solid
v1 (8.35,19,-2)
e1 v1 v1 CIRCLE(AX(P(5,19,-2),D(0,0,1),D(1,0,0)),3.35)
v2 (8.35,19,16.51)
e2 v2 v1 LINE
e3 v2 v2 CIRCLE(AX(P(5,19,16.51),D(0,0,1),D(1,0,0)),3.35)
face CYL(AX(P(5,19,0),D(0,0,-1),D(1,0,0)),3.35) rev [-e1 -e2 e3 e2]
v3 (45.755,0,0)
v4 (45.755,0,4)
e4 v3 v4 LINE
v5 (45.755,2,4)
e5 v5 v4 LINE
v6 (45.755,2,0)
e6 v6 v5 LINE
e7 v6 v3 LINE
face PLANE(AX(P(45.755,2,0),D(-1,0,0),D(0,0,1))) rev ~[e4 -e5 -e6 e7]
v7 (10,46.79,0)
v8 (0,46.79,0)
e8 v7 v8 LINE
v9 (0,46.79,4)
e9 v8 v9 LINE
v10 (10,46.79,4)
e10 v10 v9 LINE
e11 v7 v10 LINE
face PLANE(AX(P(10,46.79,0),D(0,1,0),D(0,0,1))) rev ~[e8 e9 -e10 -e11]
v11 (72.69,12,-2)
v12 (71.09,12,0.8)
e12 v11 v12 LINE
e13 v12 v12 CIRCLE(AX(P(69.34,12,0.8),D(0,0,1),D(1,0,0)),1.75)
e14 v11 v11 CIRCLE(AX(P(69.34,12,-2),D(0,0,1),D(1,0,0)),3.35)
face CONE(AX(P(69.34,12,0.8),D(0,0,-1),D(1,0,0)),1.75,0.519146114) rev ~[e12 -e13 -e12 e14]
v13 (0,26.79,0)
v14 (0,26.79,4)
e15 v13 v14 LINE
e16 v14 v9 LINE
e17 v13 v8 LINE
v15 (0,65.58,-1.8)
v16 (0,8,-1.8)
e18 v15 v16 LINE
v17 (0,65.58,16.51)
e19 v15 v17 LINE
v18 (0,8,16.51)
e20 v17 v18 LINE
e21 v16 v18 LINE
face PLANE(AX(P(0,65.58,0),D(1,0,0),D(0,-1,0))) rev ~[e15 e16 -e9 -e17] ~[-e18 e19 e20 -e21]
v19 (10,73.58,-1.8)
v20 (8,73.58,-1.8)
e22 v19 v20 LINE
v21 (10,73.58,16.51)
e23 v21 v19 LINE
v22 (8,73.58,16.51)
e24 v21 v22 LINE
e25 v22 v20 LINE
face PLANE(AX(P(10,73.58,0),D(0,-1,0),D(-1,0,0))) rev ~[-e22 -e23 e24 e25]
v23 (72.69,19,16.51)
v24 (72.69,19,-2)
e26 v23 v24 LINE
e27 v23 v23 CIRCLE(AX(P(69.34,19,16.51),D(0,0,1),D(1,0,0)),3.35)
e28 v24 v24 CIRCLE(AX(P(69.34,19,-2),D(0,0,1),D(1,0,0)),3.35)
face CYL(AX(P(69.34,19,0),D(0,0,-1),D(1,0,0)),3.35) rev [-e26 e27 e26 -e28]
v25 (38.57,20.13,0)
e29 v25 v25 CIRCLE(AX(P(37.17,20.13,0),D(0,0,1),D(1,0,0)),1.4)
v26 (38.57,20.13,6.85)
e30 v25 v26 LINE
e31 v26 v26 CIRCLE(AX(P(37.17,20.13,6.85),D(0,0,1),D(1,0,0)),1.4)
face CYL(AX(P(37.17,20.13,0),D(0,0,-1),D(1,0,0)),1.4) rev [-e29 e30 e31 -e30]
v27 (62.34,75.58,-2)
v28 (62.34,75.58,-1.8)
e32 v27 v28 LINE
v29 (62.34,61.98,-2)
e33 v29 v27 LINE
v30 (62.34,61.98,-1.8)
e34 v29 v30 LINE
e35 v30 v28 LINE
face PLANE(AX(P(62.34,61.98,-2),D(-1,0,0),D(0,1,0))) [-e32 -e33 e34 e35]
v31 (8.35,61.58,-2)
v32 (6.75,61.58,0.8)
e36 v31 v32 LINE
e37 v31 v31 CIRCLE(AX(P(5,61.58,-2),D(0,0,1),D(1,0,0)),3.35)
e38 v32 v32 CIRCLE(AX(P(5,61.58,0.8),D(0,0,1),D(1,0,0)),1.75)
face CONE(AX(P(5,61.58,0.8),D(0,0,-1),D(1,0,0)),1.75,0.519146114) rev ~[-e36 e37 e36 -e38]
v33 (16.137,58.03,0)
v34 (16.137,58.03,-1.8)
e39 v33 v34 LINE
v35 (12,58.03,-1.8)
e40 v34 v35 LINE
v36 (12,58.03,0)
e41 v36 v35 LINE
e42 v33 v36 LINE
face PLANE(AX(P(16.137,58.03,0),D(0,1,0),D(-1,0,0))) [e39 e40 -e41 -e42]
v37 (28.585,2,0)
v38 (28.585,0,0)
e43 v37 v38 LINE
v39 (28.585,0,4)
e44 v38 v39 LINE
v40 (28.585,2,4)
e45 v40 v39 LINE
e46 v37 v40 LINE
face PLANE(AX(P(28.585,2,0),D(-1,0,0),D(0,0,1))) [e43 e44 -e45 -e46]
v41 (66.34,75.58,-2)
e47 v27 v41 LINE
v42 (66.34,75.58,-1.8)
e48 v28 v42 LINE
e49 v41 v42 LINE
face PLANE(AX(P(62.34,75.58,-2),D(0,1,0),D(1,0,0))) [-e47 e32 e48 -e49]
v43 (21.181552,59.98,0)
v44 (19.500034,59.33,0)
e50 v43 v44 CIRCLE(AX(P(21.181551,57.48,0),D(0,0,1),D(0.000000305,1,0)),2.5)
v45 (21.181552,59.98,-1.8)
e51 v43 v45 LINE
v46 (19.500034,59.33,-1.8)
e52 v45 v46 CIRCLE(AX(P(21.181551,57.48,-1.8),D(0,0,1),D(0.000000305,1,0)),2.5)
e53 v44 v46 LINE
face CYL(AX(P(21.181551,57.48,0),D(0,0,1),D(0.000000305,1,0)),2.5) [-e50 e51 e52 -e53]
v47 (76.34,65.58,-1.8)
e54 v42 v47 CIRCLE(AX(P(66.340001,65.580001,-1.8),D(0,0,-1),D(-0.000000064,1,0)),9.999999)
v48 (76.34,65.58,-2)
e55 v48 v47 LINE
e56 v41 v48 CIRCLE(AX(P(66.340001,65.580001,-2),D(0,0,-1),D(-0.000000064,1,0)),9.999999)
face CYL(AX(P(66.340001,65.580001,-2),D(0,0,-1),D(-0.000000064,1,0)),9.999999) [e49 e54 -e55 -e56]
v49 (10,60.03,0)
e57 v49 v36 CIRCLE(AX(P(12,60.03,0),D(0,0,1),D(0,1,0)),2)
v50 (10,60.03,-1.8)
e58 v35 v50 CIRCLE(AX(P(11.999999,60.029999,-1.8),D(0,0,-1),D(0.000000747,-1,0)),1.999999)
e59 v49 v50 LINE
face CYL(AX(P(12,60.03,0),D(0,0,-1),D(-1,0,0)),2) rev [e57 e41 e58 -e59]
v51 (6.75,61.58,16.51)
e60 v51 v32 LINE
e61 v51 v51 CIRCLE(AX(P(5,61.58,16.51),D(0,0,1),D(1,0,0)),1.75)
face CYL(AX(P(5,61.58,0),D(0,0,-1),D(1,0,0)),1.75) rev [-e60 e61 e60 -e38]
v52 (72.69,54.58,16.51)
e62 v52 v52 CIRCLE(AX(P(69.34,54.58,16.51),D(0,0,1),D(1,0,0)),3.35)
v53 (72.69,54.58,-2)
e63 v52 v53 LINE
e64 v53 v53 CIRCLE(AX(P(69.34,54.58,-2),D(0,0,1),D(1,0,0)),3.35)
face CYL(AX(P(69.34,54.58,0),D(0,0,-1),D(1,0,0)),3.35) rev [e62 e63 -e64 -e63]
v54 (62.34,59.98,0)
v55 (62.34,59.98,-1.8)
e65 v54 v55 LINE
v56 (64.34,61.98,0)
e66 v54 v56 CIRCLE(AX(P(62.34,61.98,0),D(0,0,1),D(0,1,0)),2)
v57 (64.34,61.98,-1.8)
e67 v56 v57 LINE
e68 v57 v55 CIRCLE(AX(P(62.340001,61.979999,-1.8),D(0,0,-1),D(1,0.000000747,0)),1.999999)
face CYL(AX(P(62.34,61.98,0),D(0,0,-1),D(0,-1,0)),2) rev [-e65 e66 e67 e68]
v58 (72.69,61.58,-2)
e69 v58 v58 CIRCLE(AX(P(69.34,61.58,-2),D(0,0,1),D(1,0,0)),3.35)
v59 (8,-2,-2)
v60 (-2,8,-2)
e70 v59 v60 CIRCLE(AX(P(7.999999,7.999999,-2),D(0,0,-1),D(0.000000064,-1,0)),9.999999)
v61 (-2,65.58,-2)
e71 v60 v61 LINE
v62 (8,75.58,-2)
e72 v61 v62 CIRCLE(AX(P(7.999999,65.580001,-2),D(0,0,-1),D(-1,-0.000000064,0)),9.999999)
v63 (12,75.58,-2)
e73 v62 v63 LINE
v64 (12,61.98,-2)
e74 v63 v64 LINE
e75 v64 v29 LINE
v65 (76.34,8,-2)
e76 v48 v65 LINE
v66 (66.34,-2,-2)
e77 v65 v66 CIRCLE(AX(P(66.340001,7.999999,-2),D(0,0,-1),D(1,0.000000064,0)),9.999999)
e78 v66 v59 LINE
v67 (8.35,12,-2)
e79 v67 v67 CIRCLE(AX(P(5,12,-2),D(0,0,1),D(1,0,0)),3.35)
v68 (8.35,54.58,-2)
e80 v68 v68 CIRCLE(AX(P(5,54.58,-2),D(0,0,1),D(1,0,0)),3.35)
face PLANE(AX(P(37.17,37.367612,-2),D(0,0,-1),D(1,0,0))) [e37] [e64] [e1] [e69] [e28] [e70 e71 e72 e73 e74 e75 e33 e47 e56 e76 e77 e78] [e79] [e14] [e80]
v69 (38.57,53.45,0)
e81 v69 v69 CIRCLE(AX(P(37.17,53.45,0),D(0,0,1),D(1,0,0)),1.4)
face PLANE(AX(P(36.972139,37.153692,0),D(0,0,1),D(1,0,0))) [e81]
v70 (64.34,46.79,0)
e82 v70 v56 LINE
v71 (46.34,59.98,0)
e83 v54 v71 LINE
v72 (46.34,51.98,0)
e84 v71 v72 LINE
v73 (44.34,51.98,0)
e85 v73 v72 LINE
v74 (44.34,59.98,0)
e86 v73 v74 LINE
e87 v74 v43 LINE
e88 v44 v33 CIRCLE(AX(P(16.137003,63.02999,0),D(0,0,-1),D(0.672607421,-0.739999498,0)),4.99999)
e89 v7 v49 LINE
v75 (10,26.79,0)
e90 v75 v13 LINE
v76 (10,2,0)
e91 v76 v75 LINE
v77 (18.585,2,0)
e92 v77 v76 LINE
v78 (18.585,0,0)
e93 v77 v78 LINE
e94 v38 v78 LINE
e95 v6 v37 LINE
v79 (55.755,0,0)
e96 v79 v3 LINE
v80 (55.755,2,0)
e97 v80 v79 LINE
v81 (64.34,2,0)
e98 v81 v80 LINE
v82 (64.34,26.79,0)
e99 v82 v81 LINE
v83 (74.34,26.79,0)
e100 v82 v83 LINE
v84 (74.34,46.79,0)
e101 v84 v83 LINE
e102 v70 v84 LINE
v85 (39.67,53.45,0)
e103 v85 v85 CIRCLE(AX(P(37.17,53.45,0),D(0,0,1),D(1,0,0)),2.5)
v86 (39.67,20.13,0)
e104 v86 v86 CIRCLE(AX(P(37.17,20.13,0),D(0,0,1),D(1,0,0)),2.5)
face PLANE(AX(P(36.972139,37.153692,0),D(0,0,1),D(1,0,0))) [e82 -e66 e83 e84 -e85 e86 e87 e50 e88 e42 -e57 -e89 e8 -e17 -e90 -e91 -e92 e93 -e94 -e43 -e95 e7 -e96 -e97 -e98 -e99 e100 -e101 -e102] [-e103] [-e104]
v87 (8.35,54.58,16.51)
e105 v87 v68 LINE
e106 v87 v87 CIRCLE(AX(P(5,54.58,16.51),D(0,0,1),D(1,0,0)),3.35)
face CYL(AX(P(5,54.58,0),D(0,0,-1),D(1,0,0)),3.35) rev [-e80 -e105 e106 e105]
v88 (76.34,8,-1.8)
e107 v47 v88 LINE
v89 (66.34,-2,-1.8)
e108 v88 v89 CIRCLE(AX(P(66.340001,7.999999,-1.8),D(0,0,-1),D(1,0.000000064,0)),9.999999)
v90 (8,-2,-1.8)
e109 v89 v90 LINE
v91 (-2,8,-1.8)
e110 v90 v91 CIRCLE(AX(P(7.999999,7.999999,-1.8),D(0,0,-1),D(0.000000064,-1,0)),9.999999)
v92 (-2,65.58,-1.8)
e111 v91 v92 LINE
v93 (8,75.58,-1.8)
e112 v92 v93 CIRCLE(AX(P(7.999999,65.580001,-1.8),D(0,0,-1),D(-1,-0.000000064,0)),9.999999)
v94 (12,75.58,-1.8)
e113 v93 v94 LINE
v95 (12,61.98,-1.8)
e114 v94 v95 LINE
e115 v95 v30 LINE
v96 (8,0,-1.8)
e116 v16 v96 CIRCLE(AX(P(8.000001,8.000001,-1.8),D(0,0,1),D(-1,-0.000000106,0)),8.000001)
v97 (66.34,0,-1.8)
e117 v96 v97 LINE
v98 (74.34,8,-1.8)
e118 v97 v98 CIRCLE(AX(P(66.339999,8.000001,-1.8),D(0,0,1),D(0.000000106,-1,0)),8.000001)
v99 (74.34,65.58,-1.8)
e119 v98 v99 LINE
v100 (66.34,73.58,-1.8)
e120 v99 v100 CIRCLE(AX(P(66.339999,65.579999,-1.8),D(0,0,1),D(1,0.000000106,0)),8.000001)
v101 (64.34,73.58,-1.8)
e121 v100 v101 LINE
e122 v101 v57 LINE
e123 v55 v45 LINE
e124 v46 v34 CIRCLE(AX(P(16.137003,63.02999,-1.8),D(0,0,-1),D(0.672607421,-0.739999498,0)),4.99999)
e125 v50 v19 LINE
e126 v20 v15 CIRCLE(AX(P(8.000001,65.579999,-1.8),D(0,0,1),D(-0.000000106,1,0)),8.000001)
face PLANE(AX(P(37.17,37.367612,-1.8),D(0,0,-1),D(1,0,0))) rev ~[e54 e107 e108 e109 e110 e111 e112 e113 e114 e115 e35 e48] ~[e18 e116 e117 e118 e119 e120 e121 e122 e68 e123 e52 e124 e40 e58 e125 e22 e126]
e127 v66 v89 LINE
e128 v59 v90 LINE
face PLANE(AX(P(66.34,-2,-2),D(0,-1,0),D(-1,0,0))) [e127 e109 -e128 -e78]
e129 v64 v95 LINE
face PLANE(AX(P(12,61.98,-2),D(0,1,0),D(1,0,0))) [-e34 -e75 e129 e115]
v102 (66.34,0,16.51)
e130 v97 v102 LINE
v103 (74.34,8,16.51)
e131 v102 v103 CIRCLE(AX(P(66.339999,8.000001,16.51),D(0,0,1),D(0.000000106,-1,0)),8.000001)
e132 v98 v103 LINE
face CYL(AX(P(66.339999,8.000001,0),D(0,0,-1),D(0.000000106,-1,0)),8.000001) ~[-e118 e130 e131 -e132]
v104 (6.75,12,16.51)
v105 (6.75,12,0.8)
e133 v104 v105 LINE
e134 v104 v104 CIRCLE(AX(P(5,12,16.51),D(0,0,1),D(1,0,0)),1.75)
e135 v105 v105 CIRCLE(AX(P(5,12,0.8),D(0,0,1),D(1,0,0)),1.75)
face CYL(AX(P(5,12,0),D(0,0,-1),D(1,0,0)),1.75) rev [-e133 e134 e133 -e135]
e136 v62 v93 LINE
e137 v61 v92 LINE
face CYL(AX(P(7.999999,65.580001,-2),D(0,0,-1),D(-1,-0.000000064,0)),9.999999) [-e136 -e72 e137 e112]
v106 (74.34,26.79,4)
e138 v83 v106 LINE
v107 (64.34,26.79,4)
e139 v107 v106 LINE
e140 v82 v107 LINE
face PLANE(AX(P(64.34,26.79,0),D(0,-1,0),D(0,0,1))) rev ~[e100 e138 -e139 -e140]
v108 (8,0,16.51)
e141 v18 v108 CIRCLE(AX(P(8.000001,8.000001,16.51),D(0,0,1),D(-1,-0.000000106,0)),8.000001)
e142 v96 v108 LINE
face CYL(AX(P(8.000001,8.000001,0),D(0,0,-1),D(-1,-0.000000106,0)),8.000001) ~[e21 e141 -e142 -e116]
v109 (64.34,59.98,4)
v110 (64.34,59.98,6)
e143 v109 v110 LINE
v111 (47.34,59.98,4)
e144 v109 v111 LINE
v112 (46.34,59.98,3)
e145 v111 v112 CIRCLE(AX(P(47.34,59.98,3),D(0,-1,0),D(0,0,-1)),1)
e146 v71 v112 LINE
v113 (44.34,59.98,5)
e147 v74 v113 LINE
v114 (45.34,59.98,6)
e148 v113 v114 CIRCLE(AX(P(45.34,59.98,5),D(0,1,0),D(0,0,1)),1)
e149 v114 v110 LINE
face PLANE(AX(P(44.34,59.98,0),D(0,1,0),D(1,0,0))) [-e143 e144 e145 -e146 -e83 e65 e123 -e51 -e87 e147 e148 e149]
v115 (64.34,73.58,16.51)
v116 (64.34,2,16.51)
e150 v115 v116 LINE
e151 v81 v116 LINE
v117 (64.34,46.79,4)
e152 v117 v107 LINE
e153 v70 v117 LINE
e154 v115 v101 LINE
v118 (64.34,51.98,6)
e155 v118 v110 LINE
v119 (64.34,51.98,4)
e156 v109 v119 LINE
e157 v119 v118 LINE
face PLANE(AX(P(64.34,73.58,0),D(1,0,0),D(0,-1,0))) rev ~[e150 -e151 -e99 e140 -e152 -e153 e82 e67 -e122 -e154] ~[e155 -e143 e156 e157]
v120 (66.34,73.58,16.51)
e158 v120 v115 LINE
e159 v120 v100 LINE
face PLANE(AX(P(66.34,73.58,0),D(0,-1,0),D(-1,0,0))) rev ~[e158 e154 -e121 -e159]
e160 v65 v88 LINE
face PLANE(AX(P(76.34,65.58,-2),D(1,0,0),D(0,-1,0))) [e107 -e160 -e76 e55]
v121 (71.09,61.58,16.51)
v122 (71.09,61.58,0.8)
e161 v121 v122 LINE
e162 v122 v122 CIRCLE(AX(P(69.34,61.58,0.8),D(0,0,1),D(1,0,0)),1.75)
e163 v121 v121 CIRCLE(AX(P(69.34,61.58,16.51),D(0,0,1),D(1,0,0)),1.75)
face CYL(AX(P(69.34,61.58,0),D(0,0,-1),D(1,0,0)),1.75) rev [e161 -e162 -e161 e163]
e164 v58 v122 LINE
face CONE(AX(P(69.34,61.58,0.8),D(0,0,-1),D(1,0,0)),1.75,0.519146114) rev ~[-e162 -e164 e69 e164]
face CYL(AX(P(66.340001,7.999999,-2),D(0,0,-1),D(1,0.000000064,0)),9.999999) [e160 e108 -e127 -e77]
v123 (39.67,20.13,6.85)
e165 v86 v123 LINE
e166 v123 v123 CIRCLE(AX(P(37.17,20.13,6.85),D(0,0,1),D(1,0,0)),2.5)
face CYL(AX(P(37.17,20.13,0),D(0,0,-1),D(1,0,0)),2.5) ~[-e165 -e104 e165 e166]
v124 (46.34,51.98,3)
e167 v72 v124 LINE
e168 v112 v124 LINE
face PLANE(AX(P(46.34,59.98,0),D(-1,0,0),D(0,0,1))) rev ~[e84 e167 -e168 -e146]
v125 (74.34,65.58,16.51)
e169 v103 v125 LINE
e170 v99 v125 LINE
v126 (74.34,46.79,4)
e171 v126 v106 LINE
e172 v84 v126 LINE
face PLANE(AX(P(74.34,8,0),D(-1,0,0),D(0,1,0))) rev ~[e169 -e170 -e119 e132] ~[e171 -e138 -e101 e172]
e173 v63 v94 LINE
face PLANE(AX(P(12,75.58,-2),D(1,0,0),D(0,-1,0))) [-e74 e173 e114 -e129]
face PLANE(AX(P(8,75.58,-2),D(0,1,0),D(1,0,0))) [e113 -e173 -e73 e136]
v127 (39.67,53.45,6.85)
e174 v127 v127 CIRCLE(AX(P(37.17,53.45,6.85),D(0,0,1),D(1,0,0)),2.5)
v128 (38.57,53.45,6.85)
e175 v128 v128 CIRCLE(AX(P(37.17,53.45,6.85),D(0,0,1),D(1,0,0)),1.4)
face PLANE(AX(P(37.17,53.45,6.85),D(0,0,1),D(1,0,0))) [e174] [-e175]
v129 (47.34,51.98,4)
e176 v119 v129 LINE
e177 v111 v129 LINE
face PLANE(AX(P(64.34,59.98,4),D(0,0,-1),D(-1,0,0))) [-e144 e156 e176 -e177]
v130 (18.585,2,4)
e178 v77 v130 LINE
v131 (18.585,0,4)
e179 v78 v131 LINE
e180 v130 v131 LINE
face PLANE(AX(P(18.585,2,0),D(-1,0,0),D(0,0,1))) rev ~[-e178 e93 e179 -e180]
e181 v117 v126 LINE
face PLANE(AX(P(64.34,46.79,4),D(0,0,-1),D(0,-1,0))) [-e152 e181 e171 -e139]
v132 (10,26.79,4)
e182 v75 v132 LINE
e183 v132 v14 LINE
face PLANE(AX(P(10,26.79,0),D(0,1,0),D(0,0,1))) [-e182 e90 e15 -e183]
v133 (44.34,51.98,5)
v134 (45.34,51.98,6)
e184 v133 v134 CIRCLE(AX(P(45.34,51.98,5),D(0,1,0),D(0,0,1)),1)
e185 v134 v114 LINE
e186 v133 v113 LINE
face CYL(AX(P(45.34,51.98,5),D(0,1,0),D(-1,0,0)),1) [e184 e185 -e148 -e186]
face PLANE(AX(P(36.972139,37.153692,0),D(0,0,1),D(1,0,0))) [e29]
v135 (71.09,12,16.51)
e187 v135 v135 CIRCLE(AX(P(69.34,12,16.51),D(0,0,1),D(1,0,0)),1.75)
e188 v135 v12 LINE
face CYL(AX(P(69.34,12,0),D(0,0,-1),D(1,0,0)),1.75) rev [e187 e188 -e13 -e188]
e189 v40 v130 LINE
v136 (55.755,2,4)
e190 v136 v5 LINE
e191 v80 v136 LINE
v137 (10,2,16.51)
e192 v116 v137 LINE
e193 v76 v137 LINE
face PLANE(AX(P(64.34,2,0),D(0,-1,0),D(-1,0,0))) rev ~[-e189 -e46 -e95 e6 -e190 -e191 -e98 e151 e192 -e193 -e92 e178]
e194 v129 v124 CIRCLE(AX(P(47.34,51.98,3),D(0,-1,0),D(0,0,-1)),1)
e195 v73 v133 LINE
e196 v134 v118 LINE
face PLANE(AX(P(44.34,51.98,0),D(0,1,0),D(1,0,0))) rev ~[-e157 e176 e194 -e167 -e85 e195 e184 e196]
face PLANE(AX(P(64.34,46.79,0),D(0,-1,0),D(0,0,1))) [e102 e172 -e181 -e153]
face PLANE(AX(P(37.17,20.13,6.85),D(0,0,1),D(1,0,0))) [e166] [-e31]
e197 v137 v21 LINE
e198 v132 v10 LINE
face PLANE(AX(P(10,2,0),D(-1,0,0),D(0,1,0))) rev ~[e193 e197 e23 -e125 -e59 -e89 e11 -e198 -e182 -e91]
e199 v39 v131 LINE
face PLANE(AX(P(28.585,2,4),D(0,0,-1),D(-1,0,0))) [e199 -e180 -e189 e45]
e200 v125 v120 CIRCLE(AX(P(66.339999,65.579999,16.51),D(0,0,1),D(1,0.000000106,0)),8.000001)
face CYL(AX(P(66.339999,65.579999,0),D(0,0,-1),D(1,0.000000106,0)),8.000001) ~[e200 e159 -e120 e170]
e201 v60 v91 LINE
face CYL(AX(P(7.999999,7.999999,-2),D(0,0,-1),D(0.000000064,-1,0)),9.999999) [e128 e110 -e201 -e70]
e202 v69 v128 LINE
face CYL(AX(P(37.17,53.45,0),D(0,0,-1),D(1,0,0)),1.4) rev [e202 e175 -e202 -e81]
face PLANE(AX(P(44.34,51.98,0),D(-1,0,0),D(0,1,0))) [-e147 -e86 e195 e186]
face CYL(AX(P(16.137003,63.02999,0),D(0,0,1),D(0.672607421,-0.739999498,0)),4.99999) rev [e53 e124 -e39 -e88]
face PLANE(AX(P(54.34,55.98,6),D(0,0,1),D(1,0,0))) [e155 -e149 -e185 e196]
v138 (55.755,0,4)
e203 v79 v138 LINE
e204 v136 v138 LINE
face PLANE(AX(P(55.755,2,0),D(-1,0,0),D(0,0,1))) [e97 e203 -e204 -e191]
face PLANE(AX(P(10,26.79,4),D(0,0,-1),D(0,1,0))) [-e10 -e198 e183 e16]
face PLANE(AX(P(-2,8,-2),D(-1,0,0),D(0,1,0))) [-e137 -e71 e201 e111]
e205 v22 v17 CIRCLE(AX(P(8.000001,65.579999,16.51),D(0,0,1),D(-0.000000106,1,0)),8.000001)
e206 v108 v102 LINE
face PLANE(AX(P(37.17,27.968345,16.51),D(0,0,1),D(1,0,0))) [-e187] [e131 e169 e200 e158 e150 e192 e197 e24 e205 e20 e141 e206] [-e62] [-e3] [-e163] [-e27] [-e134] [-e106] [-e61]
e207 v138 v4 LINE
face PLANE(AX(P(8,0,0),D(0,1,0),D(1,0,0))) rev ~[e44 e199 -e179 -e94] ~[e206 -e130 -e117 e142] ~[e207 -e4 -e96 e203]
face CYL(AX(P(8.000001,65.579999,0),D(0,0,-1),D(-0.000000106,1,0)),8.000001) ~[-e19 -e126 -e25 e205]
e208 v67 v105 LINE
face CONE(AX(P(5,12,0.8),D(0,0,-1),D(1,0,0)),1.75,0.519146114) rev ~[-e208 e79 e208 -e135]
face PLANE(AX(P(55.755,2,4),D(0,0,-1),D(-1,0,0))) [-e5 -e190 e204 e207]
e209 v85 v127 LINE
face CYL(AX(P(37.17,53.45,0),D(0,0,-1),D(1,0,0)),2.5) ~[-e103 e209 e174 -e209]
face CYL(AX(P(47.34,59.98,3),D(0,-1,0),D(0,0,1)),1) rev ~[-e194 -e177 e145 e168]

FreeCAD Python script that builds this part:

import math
import FreeCAD as App
import Part
import Sketcher

V = App.Vector


def edges_at(feature, points):
    """Names of the edges that pass closest to the given points."""
    edges = feature.Shape.Edges
    near = lambda p: min(range(len(edges)), key=lambda i: edges[i].distToShape(Part.Vertex(*p))[0])
    return sorted({f"Edge{near(p) + 1}" for p in points})

doc = App.newDocument("Part")
body = doc.addObject("PartDesign::Body", "Body")

sketch1 = body.newObject("Sketcher::SketchObject", "Sketch")
sketch1.AttachmentSupport = (doc.getObject("XY_Plane"), [""])
sketch1.MapMode = "FlatFace"
sketch1.addGeometry([
    Part.ArcOfCircle(Part.Circle(V(8, 65.6, 0), V(0, 0, 1), 8), math.radians(90), math.radians(180)),
    Part.LineSegment(V(0, 65.6, 0), V(0, 8, 0)),
    Part.ArcOfCircle(Part.Circle(V(8, 8, 0), V(0, 0, 1), 8), math.radians(-180), math.radians(-90)),
    Part.LineSegment(V(8, 0, 0), V(66.3, 0, 0)),
    Part.ArcOfCircle(Part.Circle(V(66.3, 8, 0), V(0, 0, 1), 8), math.radians(-90), math.radians(0)),
    Part.LineSegment(V(74.3, 8, 0), V(74.3, 65.6, 0)),
    Part.ArcOfCircle(Part.Circle(V(66.3, 65.6, 0), V(0, 0, 1), 8), math.radians(0), math.radians(90)),
    Part.LineSegment(V(66.3, 73.6, 0), V(64.3, 73.6, 0)),
    Part.LineSegment(V(64.3, 73.6, 0), V(64.3, 60, 0)),
    Part.LineSegment(V(64.3, 60, 0), V(21.2, 60, 0)),
    Part.ArcOfCircle(Part.Circle(V(21.2, 57.5, 0), V(0, 0, 1), 2.5), math.radians(90), math.radians(132)),
    Part.ArcOfCircle(Part.Circle(V(16.1, 63, 0), V(0, 0, 1), 5), math.radians(-90), math.radians(-48)),
    Part.LineSegment(V(16.1, 58, 0), V(10, 58, 0)),
    Part.LineSegment(V(10, 58, 0), V(10, 73.6, 0)),
    Part.LineSegment(V(10, 73.6, 0), V(8, 73.6, 0)),
    Part.Circle(V(5, 12, 0), V(0, 0, 1), 1.8),
    Part.Circle(V(5, 19, 0), V(0, 0, 1), 3.4),
    Part.Circle(V(69.3, 12, 0), V(0, 0, 1), 1.8),
    Part.Circle(V(69.3, 19, 0), V(0, 0, 1), 3.4),
    Part.Circle(V(5, 54.6, 0), V(0, 0, 1), 3.4),
    Part.Circle(V(5, 61.6, 0), V(0, 0, 1), 1.8),
    Part.Circle(V(69.3, 54.6, 0), V(0, 0, 1), 3.4),
    Part.Circle(V(69.3, 61.6, 0), V(0, 0, 1), 1.8),
], False)
sketch1.addConstraint([
    Sketcher.Constraint("Tangent", 0, 2, 1, 1),
    Sketcher.Constraint("Tangent", 1, 2, 2, 1),
    Sketcher.Constraint("Tangent", 2, 2, 3, 1),
    Sketcher.Constraint("Tangent", 3, 2, 4, 1),
    Sketcher.Constraint("Tangent", 4, 2, 5, 1),
    Sketcher.Constraint("Tangent", 5, 2, 6, 1),
    Sketcher.Constraint("Tangent", 6, 2, 7, 1),
    Sketcher.Constraint("Coincident", 7, 2, 8, 1),
    Sketcher.Constraint("Coincident", 8, 2, 9, 1),
    Sketcher.Constraint("Tangent", 9, 2, 10, 1),
    Sketcher.Constraint("Tangent", 10, 2, 11, 2),
    Sketcher.Constraint("Tangent", 11, 1, 12, 1),
    Sketcher.Constraint("Coincident", 12, 2, 13, 1),
    Sketcher.Constraint("Coincident", 13, 2, 14, 1),
    Sketcher.Constraint("Tangent", 14, 2, 0, 1),
    Sketcher.Constraint("Vertical", 1),
    Sketcher.Constraint("Horizontal", 3),
    Sketcher.Constraint("Vertical", 5),
    Sketcher.Constraint("Horizontal", 7),
    Sketcher.Constraint("Vertical", 8),
    Sketcher.Constraint("Horizontal", 9),
    Sketcher.Constraint("Horizontal", 12),
    Sketcher.Constraint("Vertical", 13),
    Sketcher.Constraint("Horizontal", 14),
    Sketcher.Constraint("Equal", 0, 2),
    Sketcher.Constraint("Equal", 2, 4),
    Sketcher.Constraint("Equal", 4, 6),
    Sketcher.Constraint("Equal", 15, 17),
    Sketcher.Constraint("Equal", 16, 18),
    Sketcher.Constraint("Equal", 18, 19),
    Sketcher.Constraint("Equal", 17, 20),
    Sketcher.Constraint("Equal", 19, 21),
    Sketcher.Constraint("Equal", 20, 22),
    Sketcher.Constraint("PointOnObject", 0, 2, -2),
    Sketcher.Constraint("PointOnObject", 2, 2, -1),
    Sketcher.Constraint("Horizontal", 0, 3, 6, 3),
    Sketcher.Constraint("Horizontal", 15, 3, 17, 3),
    Sketcher.Constraint("Horizontal", 16, 3, 18, 3),
    Sketcher.Constraint("Horizontal", 19, 3, 21, 3),
    Sketcher.Constraint("Horizontal", 20, 3, 22, 3),
    Sketcher.Constraint("Vertical", 15, 3, 16, 3),
    Sketcher.Constraint("Vertical", 17, 3, 18, 3),
    Sketcher.Constraint("Vertical", 16, 3, 19, 3),
    Sketcher.Constraint("Vertical", 19, 3, 20, 3),
    Sketcher.Constraint("Vertical", 18, 3, 21, 3),
    Sketcher.Constraint("Vertical", 21, 3, 22, 3),
    Sketcher.Constraint("Equal", 7, 14),
    Sketcher.Constraint("Radius", 0, 8.000001),
    Sketcher.Constraint("Diameter", 15, 3.5),
    Sketcher.Constraint("Diameter", 16, 6.7),
    Sketcher.Constraint("Radius", 10, 2.5),
    Sketcher.Constraint("DistanceX", 7, 2, 7, 1, 2.0),
    Sketcher.Constraint("DistanceY", 8, 2, 8, 1, 13.6),
    Sketcher.Constraint("DistanceX", -1, 1, 15, 3, 5.0),
    Sketcher.Constraint("DistanceY", -1, 1, 15, 3, 12.0),
    Sketcher.Constraint("DistanceY", -1, 1, 16, 3, 19.0),
    Sketcher.Constraint("DistanceX", 4, 3, 17, 3, 3.000001),
    Sketcher.Constraint("DistanceY", 19, 3, 0, 3, 10.999999),
    Sketcher.Constraint("DistanceY", 20, 3, 0, 3, 3.999999),
    Sketcher.Constraint("DistanceX", 3, 1, 3, 2, 58.34),
    Sketcher.Constraint("DistanceY", 1, 2, 1, 1, 57.58),
    Sketcher.Constraint("DistanceY", 13, 1, 13, 2, 15.55),
    Sketcher.Constraint("DistanceY", 11, 1, 10, 2, 1.3),
    Sketcher.Constraint("DistanceX", 12, 2, 12, 1, 6.137),
])
pad1 = body.newObject("PartDesign::Pad", "Pad")
pad1.Profile = sketch1
pad1.Length = 2
pad1.Reversed = True
doc.recompute()

fillet = body.newObject("PartDesign::Fillet", "Fillet")
fillet.Base = (pad1, edges_at(pad1, [(10, 58.03, -1), (64.34, 59.98, -1)]))
fillet.Radius = 2

sketch2 = body.newObject("Sketcher::SketchObject", "Sketch001")
sketch2.AttachmentSupport = (doc.getObject("XY_Plane"), [""])
sketch2.MapMode = "FlatFace"
sketch2.addGeometry([
    Part.ArcOfCircle(Part.Circle(V(8, 65.6, 0), V(0, 0, 1), 8), math.radians(90), math.radians(180)),
    Part.LineSegment(V(0, 65.6, 0), V(0, 8, 0)),
    Part.ArcOfCircle(Part.Circle(V(8, 8, 0), V(0, 0, 1), 8), math.radians(-180), math.radians(-90)),
    Part.LineSegment(V(8, 0, 0), V(66.3, 0, 0)),
    Part.ArcOfCircle(Part.Circle(V(66.3, 8, 0), V(0, 0, 1), 8), math.radians(-90), math.radians(0)),
    Part.LineSegment(V(74.3, 8, 0), V(74.3, 65.6, 0)),
    Part.ArcOfCircle(Part.Circle(V(66.3, 65.6, 0), V(0, 0, 1), 8), math.radians(0), math.radians(90)),
    Part.LineSegment(V(66.3, 73.6, 0), V(64.3, 73.6, 0)),
    Part.LineSegment(V(64.3, 73.6, 0), V(64.3, 2, 0)),
    Part.LineSegment(V(64.3, 2, 0), V(10, 2, 0)),
    Part.LineSegment(V(10, 2, 0), V(10, 73.6, 0)),
    Part.LineSegment(V(10, 73.6, 0), V(8, 73.6, 0)),
    Part.Circle(V(5, 12, 0), V(0, 0, 1), 1.8),
    Part.Circle(V(5, 19, 0), V(0, 0, 1), 3.4),
    Part.Circle(V(69.3, 12, 0), V(0, 0, 1), 1.8),
    Part.Circle(V(69.3, 19, 0), V(0, 0, 1), 3.4),
    Part.Circle(V(5, 54.6, 0), V(0, 0, 1), 3.4),
    Part.Circle(V(5, 61.6, 0), V(0, 0, 1), 1.8),
    Part.Circle(V(69.3, 54.6, 0), V(0, 0, 1), 3.4),
    Part.Circle(V(69.3, 61.6, 0), V(0, 0, 1), 1.8),
], False)
sketch2.addConstraint([
    Sketcher.Constraint("Tangent", 0, 2, 1, 1),
    Sketcher.Constraint("Tangent", 1, 2, 2, 1),
    Sketcher.Constraint("Tangent", 2, 2, 3, 1),
    Sketcher.Constraint("Tangent", 3, 2, 4, 1),
    Sketcher.Constraint("Tangent", 4, 2, 5, 1),
    Sketcher.Constraint("Tangent", 5, 2, 6, 1),
    Sketcher.Constraint("Tangent", 6, 2, 7, 1),
    Sketcher.Constraint("Coincident", 7, 2, 8, 1),
    Sketcher.Constraint("Coincident", 8, 2, 9, 1),
    Sketcher.Constraint("Coincident", 9, 2, 10, 1),
    Sketcher.Constraint("Coincident", 10, 2, 11, 1),
    Sketcher.Constraint("Tangent", 11, 2, 0, 1),
    Sketcher.Constraint("Vertical", 1),
    Sketcher.Constraint("Horizontal", 3),
    Sketcher.Constraint("Vertical", 5),
    Sketcher.Constraint("Horizontal", 7),
    Sketcher.Constraint("Vertical", 8),
    Sketcher.Constraint("Horizontal", 9),
    Sketcher.Constraint("Vertical", 10),
    Sketcher.Constraint("Horizontal", 11),
    Sketcher.Constraint("Equal", 0, 2),
    Sketcher.Constraint("Equal", 2, 4),
    Sketcher.Constraint("Equal", 4, 6),
    Sketcher.Constraint("Equal", 12, 14),
    Sketcher.Constraint("Equal", 13, 15),
    Sketcher.Constraint("Equal", 15, 16),
    Sketcher.Constraint("Equal", 14, 17),
    Sketcher.Constraint("Equal", 16, 18),
    Sketcher.Constraint("Equal", 17, 19),
    Sketcher.Constraint("PointOnObject", 0, 2, -2),
    Sketcher.Constraint("PointOnObject", 2, 2, -1),
    Sketcher.Constraint("Horizontal", 0, 3, 6, 3),
    Sketcher.Constraint("Horizontal", 12, 3, 14, 3),
    Sketcher.Constraint("Horizontal", 13, 3, 15, 3),
    Sketcher.Constraint("Horizontal", 16, 3, 18, 3),
    Sketcher.Constraint("Horizontal", 17, 3, 19, 3),
    Sketcher.Constraint("Vertical", 12, 3, 13, 3),
    Sketcher.Constraint("Vertical", 14, 3, 15, 3),
    Sketcher.Constraint("Vertical", 13, 3, 16, 3),
    Sketcher.Constraint("Vertical", 16, 3, 17, 3),
    Sketcher.Constraint("Vertical", 15, 3, 18, 3),
    Sketcher.Constraint("Vertical", 18, 3, 19, 3),
    Sketcher.Constraint("Equal", 7, 11),
    Sketcher.Constraint("Radius", 0, 8.000001),
    Sketcher.Constraint("Diameter", 12, 3.5),
    Sketcher.Constraint("Diameter", 13, 6.7),
    Sketcher.Constraint("DistanceX", 7, 2, 7, 1, 2.0),
    Sketcher.Constraint("DistanceX", -1, 1, 12, 3, 5.0),
    Sketcher.Constraint("DistanceY", -1, 1, 12, 3, 12.0),
    Sketcher.Constraint("DistanceY", -1, 1, 13, 3, 19.0),
    Sketcher.Constraint("DistanceY", -1, 1, 8, 2, 2.0),
    Sketcher.Constraint("DistanceX", 4, 3, 14, 3, 3.000001),
    Sketcher.Constraint("DistanceY", 16, 3, 0, 3, 10.999999),
    Sketcher.Constraint("DistanceY", 17, 3, 0, 3, 3.999999),
    Sketcher.Constraint("DistanceX", 3, 1, 3, 2, 58.34),
    Sketcher.Constraint("DistanceY", 1, 2, 1, 1, 57.58),
])
pad2 = body.newObject("PartDesign::Pad", "Pad001")
pad2.Profile = sketch2
pad2.Length = 16.51
doc.recompute()

chamfer = body.newObject("PartDesign::Chamfer", "Chamfer")
chamfer.Base = (pad2, edges_at(pad2, [
    (3.25, 61.58, -2),
    (3.25, 12, -2),
    (67.59, 12, -2),
    (67.59, 61.58, -2),
]))
chamfer.ChamferType = "Two distances"
chamfer.Size = 1.6
chamfer.Size2 = 2.8

sketch3 = body.newObject("Sketcher::SketchObject", "Sketch002")
sketch3.AttachmentSupport = (doc.getObject("XY_Plane"), [""])
sketch3.MapMode = "FlatFace"
sketch3.addGeometry([
    Part.Circle(V(37.2, 53.5, 0), V(0, 0, 1), 2.5),
    Part.Circle(V(37.2, 53.5, 0), V(0, 0, 1), 1.4),
    Part.Circle(V(37.2, 20.1, 0), V(0, 0, 1), 2.5),
    Part.Circle(V(37.2, 20.1, 0), V(0, 0, 1), 1.4),
], False)
sketch3.addConstraint([
    Sketcher.Constraint("Coincident", 1, 3, 0, 3),
    Sketcher.Constraint("Coincident", 3, 3, 2, 3),
    Sketcher.Constraint("Equal", 0, 2),
    Sketcher.Constraint("Equal", 1, 3),
    Sketcher.Constraint("Vertical", 1, 3, 2, 3),
    Sketcher.Constraint("Diameter", 0, 5.0),
    Sketcher.Constraint("Diameter", 1, 2.8),
    Sketcher.Constraint("DistanceX", -1, 1, 0, 3, 37.17),
    Sketcher.Constraint("DistanceY", -1, 1, 0, 3, 53.45),
    Sketcher.Constraint("DistanceY", -1, 1, 2, 3, 20.13),
])
pad3 = body.newObject("PartDesign::Pad", "Pad002")
pad3.Profile = sketch3
pad3.Length = 6.85

sketch4 = body.newObject("Sketcher::SketchObject", "Sketch003")
sketch4.AttachmentSupport = (doc.getObject("YZ_Plane"), [""])
sketch4.MapMode = "FlatFace"
sketch4.AttachmentOffset = App.Placement(V(0, 0, 10), App.Rotation())
sketch4.addGeometry([
    Part.LineSegment(V(26.8, 4, 0), V(26.8, 0, 0)),
    Part.LineSegment(V(26.8, 0, 0), V(46.8, 0, 0)),
    Part.LineSegment(V(46.8, 0, 0), V(46.8, 4, 0)),
    Part.LineSegment(V(46.8, 4, 0), V(26.8, 4, 0)),
], False)
sketch4.addConstraint([
    Sketcher.Constraint("Coincident", 0, 2, 1, 1),
    Sketcher.Constraint("Coincident", 1, 2, 2, 1),
    Sketcher.Constraint("Coincident", 2, 2, 3, 1),
    Sketcher.Constraint("Coincident", 3, 2, 0, 1),
    Sketcher.Constraint("Vertical", 0),
    Sketcher.Constraint("Horizontal", 1),
    Sketcher.Constraint("Vertical", 2),
    Sketcher.Constraint("Horizontal", 3),
    Sketcher.Constraint("PointOnObject", 0, 2, -1),
    Sketcher.Constraint("DistanceX", 1, 1, 1, 2, 20.0),
    Sketcher.Constraint("DistanceY", 0, 2, 0, 1, 4.0),
    Sketcher.Constraint("DistanceX", -1, 1, 0, 2, 26.79),
])
pocket1 = body.newObject("PartDesign::Pocket", "Pocket")
pocket1.Profile = sketch4
pocket1.Type = "ThroughAll"

sketch5 = body.newObject("Sketcher::SketchObject", "Sketch004")
sketch5.AttachmentSupport = (doc.getObject("YZ_Plane"), [""])
sketch5.MapMode = "FlatFace"
sketch5.AttachmentOffset = App.Placement(V(0, 0, 64.34), App.Rotation())
sketch5.addGeometry([
    Part.LineSegment(V(46.8, 4, 0), V(46.8, 0, 0)),
    Part.LineSegment(V(46.8, 0, 0), V(26.8, 0, 0)),
    Part.LineSegment(V(26.8, 0, 0), V(26.8, 4, 0)),
    Part.LineSegment(V(26.8, 4, 0), V(46.8, 4, 0)),
], False)
sketch5.addConstraint([
    Sketcher.Constraint("Coincident", 0, 2, 1, 1),
    Sketcher.Constraint("Coincident", 1, 2, 2, 1),
    Sketcher.Constraint("Coincident", 2, 2, 3, 1),
    Sketcher.Constraint("Coincident", 3, 2, 0, 1),
    Sketcher.Constraint("Vertical", 0),
    Sketcher.Constraint("Horizontal", 1),
    Sketcher.Constraint("Vertical", 2),
    Sketcher.Constraint("Horizontal", 3),
    Sketcher.Constraint("PointOnObject", 0, 2, -1),
    Sketcher.Constraint("DistanceX", 1, 2, 1, 1, 20.0),
    Sketcher.Constraint("DistanceY", 0, 2, 0, 1, 4.0),
    Sketcher.Constraint("DistanceX", -1, 1, 0, 2, 46.79),
])
pocket2 = body.newObject("PartDesign::Pocket", "Pocket001")
pocket2.Profile = sketch5
pocket2.Type = "ThroughAll"
pocket2.Reversed = True

sketch6 = body.newObject("Sketcher::SketchObject", "Sketch005")
sketch6.AttachmentSupport = (doc.getObject("XZ_Plane"), [""])
sketch6.MapMode = "FlatFace"
sketch6.AttachmentOffset = App.Placement(V(0, 0, -2), App.Rotation())
sketch6.addGeometry([
    Part.LineSegment(V(55.8, 4, 0), V(55.8, 0, 0)),
    Part.LineSegment(V(55.8, 0, 0), V(45.8, 0, 0)),
    Part.LineSegment(V(45.8, 0, 0), V(45.8, 4, 0)),
    Part.LineSegment(V(45.8, 4, 0), V(55.8, 4, 0)),
    Part.LineSegment(V(28.6, 4, 0), V(28.6, 0, 0)),
    Part.LineSegment(V(28.6, 0, 0), V(18.6, 0, 0)),
    Part.LineSegment(V(18.6, 0, 0), V(18.6, 4, 0)),
    Part.LineSegment(V(18.6, 4, 0), V(28.6, 4, 0)),
], False)
sketch6.addConstraint([
    Sketcher.Constraint("Coincident", 0, 2, 1, 1),
    Sketcher.Constraint("Coincident", 1, 2, 2, 1),
    Sketcher.Constraint("Coincident", 2, 2, 3, 1),
    Sketcher.Constraint("Coincident", 3, 2, 0, 1),
    Sketcher.Constraint("Coincident", 4, 2, 5, 1),
    Sketcher.Constraint("Coincident", 5, 2, 6, 1),
    Sketcher.Constraint("Coincident", 6, 2, 7, 1),
    Sketcher.Constraint("Coincident", 7, 2, 4, 1),
    Sketcher.Constraint("Vertical", 0),
    Sketcher.Constraint("Horizontal", 1),
    Sketcher.Constraint("Vertical", 2),
    Sketcher.Constraint("Horizontal", 3),
    Sketcher.Constraint("Vertical", 4),
    Sketcher.Constraint("Horizontal", 5),
    Sketcher.Constraint("Vertical", 6),
    Sketcher.Constraint("Horizontal", 7),
    Sketcher.Constraint("PointOnObject", 0, 2, -1),
    Sketcher.Constraint("PointOnObject", 4, 2, -1),
    Sketcher.Constraint("Horizontal", 3, 2, 6, 2),
    Sketcher.Constraint("Equal", 3, 5),
    Sketcher.Constraint("DistanceX", 1, 2, 1, 1, 10.0),
    Sketcher.Constraint("DistanceY", 0, 2, 0, 1, 4.0),
    Sketcher.Constraint("DistanceX", 4, 2, 1, 2, 17.17),
    Sketcher.Constraint("DistanceX", -1, 1, 0, 2, 55.755),
])
pocket3 = body.newObject("PartDesign::Pocket", "Pocket002")
pocket3.Profile = sketch6
pocket3.Type = "ThroughAll"
pocket3.Reversed = True

sketch7 = body.newObject("Sketcher::SketchObject", "Sketch006")
sketch7.AttachmentSupport = (doc.getObject("XY_Plane"), [""])
sketch7.MapMode = "FlatFace"
sketch7.addGeometry([
    Part.LineSegment(V(44, 60, 0), V(44, 52, 0)),
    Part.LineSegment(V(44, 52, 0), V(64, 52, 0)),
    Part.LineSegment(V(64, 52, 0), V(64, 60, 0)),
    Part.LineSegment(V(64, 60, 0), V(44, 60, 0)),
], False)
sketch7.addConstraint([
    Sketcher.Constraint("Coincident", 0, 2, 1, 1),
    Sketcher.Constraint("Coincident", 1, 2, 2, 1),
    Sketcher.Constraint("Coincident", 2, 2, 3, 1),
    Sketcher.Constraint("Coincident", 3, 2, 0, 1),
    Sketcher.Constraint("Vertical", 0),
    Sketcher.Constraint("Horizontal", 1),
    Sketcher.Constraint("Vertical", 2),
    Sketcher.Constraint("Horizontal", 3),
    Sketcher.Constraint("DistanceX", 1, 1, 1, 2, 20.0),
    Sketcher.Constraint("DistanceY", 0, 2, 0, 1, 8.0),
    Sketcher.Constraint("DistanceX", -1, 1, 0, 2, 44.34),
    Sketcher.Constraint("DistanceY", -1, 1, 0, 2, 51.98),
])
pad4 = body.newObject("PartDesign::Pad", "Pad003")
pad4.Profile = sketch7
pad4.Length = 6

sketch8 = body.newObject("Sketcher::SketchObject", "Sketch007")
sketch8.AttachmentSupport = (doc.getObject("XZ_Plane"), [""])
sketch8.MapMode = "FlatFace"
sketch8.AttachmentOffset = App.Placement(V(0, 0, -59.98), App.Rotation())
sketch8.addGeometry([
    Part.LineSegment(V(64.3, 4, 0), V(64.3, 0, 0)),
    Part.LineSegment(V(64.3, 0, 0), V(46.3, 0, 0)),
    Part.LineSegment(V(46.3, 0, 0), V(46.3, 4, 0)),
    Part.LineSegment(V(46.3, 4, 0), V(64.3, 4, 0)),
], False)
sketch8.addConstraint([
    Sketcher.Constraint("Coincident", 0, 2, 1, 1),
    Sketcher.Constraint("Coincident", 1, 2, 2, 1),
    Sketcher.Constraint("Coincident", 2, 2, 3, 1),
    Sketcher.Constraint("Coincident", 3, 2, 0, 1),
    Sketcher.Constraint("Vertical", 0),
    Sketcher.Constraint("Horizontal", 1),
    Sketcher.Constraint("Vertical", 2),
    Sketcher.Constraint("Horizontal", 3),
    Sketcher.Constraint("PointOnObject", 0, 2, -1),
    Sketcher.Constraint("DistanceX", 1, 2, 1, 1, 18.0),
    Sketcher.Constraint("DistanceY", 0, 2, 0, 1, 4.0),
    Sketcher.Constraint("DistanceX", -1, 1, 0, 2, 64.34),
])
pocket4 = body.newObject("PartDesign::Pocket", "Pocket003")
pocket4.Profile = sketch8
pocket4.Length = 8
pocket4.Reversed = True
doc.recompute()

fillet2 = body.newObject("PartDesign::Fillet", "Fillet001")
fillet2.Base = (pocket4, edges_at(pocket4, [(46.34, 55.98, 4), (44.34, 55.98, 6)]))
fillet2.Radius = 1

sketch9 = body.newObject("Sketcher::SketchObject", "Sketch008")
sketch9.AttachmentSupport = (doc.getObject("XY_Plane"), [""])
sketch9.MapMode = "FlatFace"
sketch9.AttachmentOffset = App.Placement(V(0, 0, -2), App.Rotation())
sketch9.addGeometry([
    Part.ArcOfCircle(Part.Circle(V(7.999999, 7.999999, 0), V(0, 0, 1), 9.999999), math.radians(179.999996), math.radians(270.000004)),
    Part.LineSegment(V(-2, 8, 0), V(-2, 65.58, 0)),
    Part.ArcOfCircle(Part.Circle(V(7.999999, 65.580001, 0), V(0, 0, 1), 9.999999), math.radians(89.999996), math.radians(180.000004)),
    Part.LineSegment(V(8, 75.58, 0), V(12, 75.58, 0)),
    Part.LineSegment(V(12, 75.58, 0), V(12, 61.98, 0)),
    Part.LineSegment(V(12, 61.98, 0), V(62.34, 61.98, 0)),
    Part.LineSegment(V(62.34, 61.98, 0), V(62.34, 75.58, 0)),
    Part.LineSegment(V(62.34, 75.58, 0), V(66.34, 75.58, 0)),
    Part.ArcOfCircle(Part.Circle(V(66.340001, 65.580001, 0), V(0, 0, 1), 9.999999), math.radians(-0.000004), math.radians(90.000004)),
    Part.LineSegment(V(76.34, 65.58, 0), V(76.34, 8, 0)),
    Part.ArcOfCircle(Part.Circle(V(66.340001, 7.999999, 0), V(0, 0, 1), 9.999999), math.radians(-90.000004), math.radians(0.000004)),
    Part.LineSegment(V(66.34, -2, 0), V(8, -2, 0)),
    Part.ArcOfCircle(Part.Circle(V(8.000001, 65.579999, 0), V(0, 0, 1), 8.000001), math.radians(90.000006), math.radians(179.999994)),
    Part.LineSegment(V(0, 65.58, 0), V(0, 8, 0)),
    Part.ArcOfCircle(Part.Circle(V(8.000001, 8.000001, 0), V(0, 0, 1), 8.000001), math.radians(-179.999994), math.radians(-90.000006)),
    Part.LineSegment(V(8, 0, 0), V(66.34, 0, 0)),
    Part.ArcOfCircle(Part.Circle(V(66.339999, 8.000001, 0), V(0, 0, 1), 8.000001), math.radians(-89.999994), math.radians(-0.000006)),
    Part.LineSegment(V(74.34, 8, 0), V(74.34, 65.58, 0)),
    Part.ArcOfCircle(Part.Circle(V(66.339999, 65.579999, 0), V(0, 0, 1), 8.000001), math.radians(0.000006), math.radians(89.999994)),
    Part.LineSegment(V(66.34, 73.58, 0), V(64.34, 73.58, 0)),
    Part.LineSegment(V(64.34, 73.58, 0), V(64.34, 61.98, 0)),
    Part.ArcOfCircle(Part.Circle(V(62.340001, 61.979999, 0), V(0, 0, 1), 1.999999), math.radians(-90.000043), math.radians(0.000043)),
    Part.LineSegment(V(62.34, 59.98, 0), V(21.181552, 59.98, 0)),
    Part.ArcOfCircle(Part.Circle(V(21.181551, 57.48, 0), V(0, 0, 1), 2.5), math.radians(89.999983), math.radians(132.268583)),
    Part.ArcOfCircle(Part.Circle(V(16.137003, 63.02999, 0), V(0, 0, 1), 4.99999), math.radians(-90.000039), math.radians(-47.731373)),
    Part.LineSegment(V(16.137, 58.03, 0), V(12, 58.03, 0)),
    Part.ArcOfCircle(Part.Circle(V(11.999999, 60.029999, 0), V(0, 0, 1), 1.999999), math.radians(179.999957), math.radians(270.000043)),
    Part.LineSegment(V(10, 60.03, 0), V(10, 73.58, 0)),
    Part.LineSegment(V(10, 73.58, 0), V(8, 73.58, 0)),
], False)
sketch9.addConstraint([
    Sketcher.Constraint("Coincident", 0, 1, 1, 1),
    Sketcher.Constraint("Coincident", 1, 2, 2, 2),
    Sketcher.Constraint("Coincident", 2, 1, 3, 1),
    Sketcher.Constraint("Coincident", 3, 2, 4, 1),
    Sketcher.Constraint("Coincident", 4, 2, 5, 1),
    Sketcher.Constraint("Coincident", 5, 2, 6, 1),
    Sketcher.Constraint("Coincident", 6, 2, 7, 1),
    Sketcher.Constraint("Coincident", 7, 2, 8, 2),
    Sketcher.Constraint("Coincident", 8, 1, 9, 1),
    Sketcher.Constraint("Coincident", 9, 2, 10, 2),
    Sketcher.Constraint("Coincident", 10, 1, 11, 1),
    Sketcher.Constraint("Coincident", 11, 2, 0, 2),
    Sketcher.Constraint("Coincident", 12, 2, 13, 1),
    Sketcher.Constraint("Coincident", 13, 2, 14, 1),
    Sketcher.Constraint("Coincident", 14, 2, 15, 1),
    Sketcher.Constraint("Coincident", 15, 2, 16, 1),
    Sketcher.Constraint("Coincident", 16, 2, 17, 1),
    Sketcher.Constraint("Coincident", 17, 2, 18, 1),
    Sketcher.Constraint("Coincident", 18, 2, 19, 1),
    Sketcher.Constraint("Coincident", 19, 2, 20, 1),
    Sketcher.Constraint("Coincident", 20, 2, 21, 2),
    Sketcher.Constraint("Coincident", 21, 1, 22, 1),
    Sketcher.Constraint("Coincident", 22, 2, 23, 1),
    Sketcher.Constraint("Coincident", 23, 2, 24, 2),
    Sketcher.Constraint("Coincident", 24, 1, 25, 1),
    Sketcher.Constraint("Coincident", 25, 2, 26, 2),
    Sketcher.Constraint("Coincident", 26, 1, 27, 1),
    Sketcher.Constraint("Coincident", 27, 2, 28, 1),
    Sketcher.Constraint("Coincident", 28, 2, 12, 1),
    Sketcher.Constraint("Vertical", 1),
    Sketcher.Constraint("Horizontal", 3),
    Sketcher.Constraint("Vertical", 4),
    Sketcher.Constraint("Horizontal", 5),
    Sketcher.Constraint("Vertical", 6),
    Sketcher.Constraint("Horizontal", 7),
    Sketcher.Constraint("Vertical", 9),
    Sketcher.Constraint("Horizontal", 11),
    Sketcher.Constraint("Vertical", 13),
    Sketcher.Constraint("Horizontal", 15),
    Sketcher.Constraint("Vertical", 17),
    Sketcher.Constraint("Horizontal", 19),
    Sketcher.Constraint("Vertical", 20),
    Sketcher.Constraint("Horizontal", 22),
    Sketcher.Constraint("Horizontal", 25),
    Sketcher.Constraint("Vertical", 27),
    Sketcher.Constraint("Horizontal", 28),
    Sketcher.Constraint("Coincident", 12, 3, 2, 3),
    Sketcher.Constraint("Coincident", 14, 3, 0, 3),
    Sketcher.Constraint("Coincident", 16, 3, 10, 3),
    Sketcher.Constraint("Coincident", 18, 3, 8, 3),
    Sketcher.Constraint("Coincident", 5, 2, 21, 3),
    Sketcher.Constraint("PointOnObject", 12, 2, -2),
    Sketcher.Constraint("PointOnObject", 14, 2, -1),
    Sketcher.Constraint("Radius", 0, 9.999999),
    Sketcher.Constraint("Radius", 2, 9.999999),
    Sketcher.Constraint("Radius", 8, 9.999999),
    Sketcher.Constraint("Radius", 10, 9.999999),
    Sketcher.Constraint("Radius", 12, 8.000001),
    Sketcher.Constraint("Radius", 21, 1.999999),
    Sketcher.Constraint("Radius", 26, 1.999999),
    Sketcher.Constraint("Radius", 23, 2.5),
    Sketcher.Constraint("DistanceX", 3, 1, 3, 2, 4.0),
    Sketcher.Constraint("DistanceX", 7, 1, 7, 2, 4.0),
    Sketcher.Constraint("DistanceX", 19, 2, 19, 1, 2.0),
    Sketcher.Constraint("DistanceX", 28, 2, 28, 1, 2.0),
    Sketcher.Constraint("DistanceY", 4, 2, 4, 1, 13.6),
    Sketcher.Constraint("DistanceY", 6, 1, 6, 2, 13.6),
    Sketcher.Constraint("DistanceY", 20, 2, 20, 1, 11.6),
    Sketcher.Constraint("DistanceX", -1, 1, 26, 3, 11.999999),
    Sketcher.Constraint("DistanceY", -1, 1, 0, 1, 8.0),
    Sketcher.Constraint("DistanceX", -1, 1, 2, 1, 8.0),
    Sketcher.Constraint("DistanceY", -1, 1, 9, 2, 8.0),
    Sketcher.Constraint("DistanceX", -1, 1, 11, 2, 8.0),
    Sketcher.Constraint("DistanceY", -1, 1, 13, 2, 8.0),
    Sketcher.Constraint("DistanceX", -1, 1, 14, 2, 8.0),
    Sketcher.Constraint("DistanceY", -1, 1, 16, 2, 8.0),
    Sketcher.Constraint("DistanceX", -1, 1, 25, 2, 12.0),
    Sketcher.Constraint("DistanceX", 21, 3, 8, 3, 3.999999),
    Sketcher.Constraint("DistanceY", 1, 2, 2, 1, 10.0),
    Sketcher.Constraint("DistanceY", 8, 1, 7, 2, 10.0),
    Sketcher.Constraint("DistanceX", 10, 1, 9, 2, 10.0),
    Sketcher.Constraint("DistanceY", 12, 2, 2, 1, 10.0),
    Sketcher.Constraint("DistanceX", 15, 2, 9, 2, 10.0),
    Sketcher.Constraint("DistanceY", 17, 2, 18, 2, 8.0),
    Sketcher.Constraint("DistanceX", 21, 1, 20, 2, 2.0),
    Sketcher.Constraint("DistanceY", 25, 2, 26, 1, 2.0),
    Sketcher.Constraint("DistanceX", 5, 1, 5, 2, 50.34),
    Sketcher.Constraint("DistanceY", 1, 1, 1, 2, 57.58),
    Sketcher.Constraint("DistanceY", 27, 1, 27, 2, 13.55),
    Sketcher.Constraint("DistanceY", 23, 2, 26, 3, 0.699999),
    Sketcher.Constraint("DistanceX", 25, 2, 25, 1, 4.137),
    Sketcher.Constraint("Radius", 24, 4.99999),
    Sketcher.Constraint("DistanceX", 24, 3, 21, 3, 46.202998),
    Sketcher.Constraint("DistanceX", 22, 2, 22, 1, 41.158448),
])
pad5 = body.newObject("PartDesign::Pad", "Pad004")
pad5.Profile = sketch9
pad5.Length = 0.2

doc.recompute()
